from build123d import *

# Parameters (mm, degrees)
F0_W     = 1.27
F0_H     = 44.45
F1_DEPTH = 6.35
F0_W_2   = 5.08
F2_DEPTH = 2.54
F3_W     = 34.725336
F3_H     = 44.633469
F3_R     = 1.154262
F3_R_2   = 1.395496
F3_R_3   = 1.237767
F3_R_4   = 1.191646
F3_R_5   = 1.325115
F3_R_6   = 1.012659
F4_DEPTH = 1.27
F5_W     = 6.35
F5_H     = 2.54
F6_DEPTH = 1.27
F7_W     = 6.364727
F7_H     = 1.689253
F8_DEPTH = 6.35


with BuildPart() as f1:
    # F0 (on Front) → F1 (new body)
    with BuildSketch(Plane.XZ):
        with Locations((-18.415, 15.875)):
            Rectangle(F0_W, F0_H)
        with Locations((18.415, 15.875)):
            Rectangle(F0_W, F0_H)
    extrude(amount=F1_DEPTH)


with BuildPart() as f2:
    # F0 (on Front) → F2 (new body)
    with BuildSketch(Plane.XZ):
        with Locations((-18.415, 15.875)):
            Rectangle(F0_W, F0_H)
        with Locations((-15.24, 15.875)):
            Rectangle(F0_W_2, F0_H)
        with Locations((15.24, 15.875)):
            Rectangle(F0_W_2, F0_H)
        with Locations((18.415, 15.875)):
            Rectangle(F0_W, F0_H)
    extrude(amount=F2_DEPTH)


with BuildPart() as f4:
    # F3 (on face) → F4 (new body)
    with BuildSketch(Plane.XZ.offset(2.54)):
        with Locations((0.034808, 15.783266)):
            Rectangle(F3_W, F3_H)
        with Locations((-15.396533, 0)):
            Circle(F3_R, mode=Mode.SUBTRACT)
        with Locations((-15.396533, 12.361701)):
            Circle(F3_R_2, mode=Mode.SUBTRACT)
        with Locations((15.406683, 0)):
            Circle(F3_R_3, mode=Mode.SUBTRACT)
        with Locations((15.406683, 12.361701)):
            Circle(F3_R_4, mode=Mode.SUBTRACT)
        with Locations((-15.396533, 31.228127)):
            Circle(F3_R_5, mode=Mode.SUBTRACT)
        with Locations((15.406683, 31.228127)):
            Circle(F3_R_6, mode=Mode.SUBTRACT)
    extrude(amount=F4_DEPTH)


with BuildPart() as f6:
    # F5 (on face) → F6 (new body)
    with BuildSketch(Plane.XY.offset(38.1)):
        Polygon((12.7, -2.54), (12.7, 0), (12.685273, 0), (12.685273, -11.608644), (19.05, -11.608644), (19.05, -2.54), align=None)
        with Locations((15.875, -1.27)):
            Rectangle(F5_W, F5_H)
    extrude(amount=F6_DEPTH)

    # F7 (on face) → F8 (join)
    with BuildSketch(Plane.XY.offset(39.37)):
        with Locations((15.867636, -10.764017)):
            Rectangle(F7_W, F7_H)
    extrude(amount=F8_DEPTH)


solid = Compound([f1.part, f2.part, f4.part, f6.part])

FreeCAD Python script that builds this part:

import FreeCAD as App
import Part
import Sketcher
from FreeCAD import Vector
Q = App.Units.Quantity


def add_polygon(sketch, points):
    """Adds a closed chain of lines whose ends are joined by coincident constraints."""
    first, n = sketch.GeometryCount, len(points)
    for a, b in zip(points, points[1:] + points[:1]):
        sketch.addGeometry(Part.LineSegment(App.Vector(*a, 0), App.Vector(*b, 0)), False)
    for i in range(n):
        sketch.addConstraint(Sketcher.Constraint("Coincident", first + i, 2, first + (i + 1) % n, 1))

doc = App.newDocument("Part")
params = doc.addObject("Spreadsheet::Sheet", "Params")
for row, (alias, value) in enumerate([
    ("sketch1_width", "0.05 in"),
    ("sketch1_height", "1.75 in"),
    ("pad1_length", "0.25 in"),
    ("sketch2_width", "0.25 in"),
    ("sketch2_height", "1.75 in"),
    ("pad2_length", "0.1 in"),
    ("pad3_length", "0.05 in"),
    ("pad4_length", "0.05 in"),
    ("pad5_length", "0.25 in"),
], start=1):
    params.set(f"A{row}", alias)
    params.set(f"B{row}", "=" + value)
    params.setAlias(f"B{row}", alias)

body = doc.addObject("PartDesign::Body", "Body")
body.AllowCompound = True

sketch1 = body.newObject("Sketcher::SketchObject", "Sketch")
sketch1.AttachmentSupport = (doc.getObject("XZ_Plane"), [""])
sketch1.MapMode = "FlatFace"
add_polygon(sketch1, [(-19.1, 38.1), (-19.1, -6.3), (-17.8, -6.3), (-17.8, 38.1)])
add_polygon(sketch1, [(17.8, 38.1), (17.8, -6.3), (19.1, -6.3), (19.1, 38.1)])
sketch1.addConstraint([
    Sketcher.Constraint("Vertical", 0),
    Sketcher.Constraint("Horizontal", 1),
    Sketcher.Constraint("Vertical", 2),
    Sketcher.Constraint("Horizontal", 3),
    Sketcher.Constraint("Vertical", 4),
    Sketcher.Constraint("Horizontal", 5),
    Sketcher.Constraint("Vertical", 6),
    Sketcher.Constraint("Horizontal", 7),
    Sketcher.Constraint("Symmetric", 1, 2, 4, 2, -2),
    Sketcher.Constraint("Symmetric", 3, 2, 6, 2, -2),
    Sketcher.Constraint("DistanceX", 1, 1, 1, 2, Q("0.05 in")),
    Sketcher.Constraint("DistanceY", 0, 2, 0, 1, Q("1.75 in")),
    Sketcher.Constraint("DistanceX", 1, 2, -1, 1, Q("0.7 in")),
    Sketcher.Constraint("DistanceY", -1, 1, 2, 2, Q("1.5 in")),
])
sketch1.setExpression("Constraints[18]", "Params.sketch1_width")
sketch1.setExpression("Constraints[19]", "Params.sketch1_height")
pad1 = body.newObject("PartDesign::Pad", "Pad")
pad1.Profile = sketch1
pad1.setExpression("Length", "Params.pad1_length")
body2 = doc.addObject("PartDesign::Body", "Body001")
body2.AllowCompound = True

sketch2 = body2.newObject("Sketcher::SketchObject", "Sketch001")
sketch2.AttachmentSupport = (doc.getObject("XZ_Plane001"), [""])
sketch2.MapMode = "FlatFace"
add_polygon(sketch2, [(-19, 38), (-19, -6), (-13, -6), (-13, 38)])
add_polygon(sketch2, [(13, 38), (13, -6), (19, -6), (19, 38)])
sketch2.addConstraint([
    Sketcher.Constraint("Vertical", 0),
    Sketcher.Constraint("Horizontal", 1),
    Sketcher.Constraint("Vertical", 2),
    Sketcher.Constraint("Horizontal", 3),
    Sketcher.Constraint("Vertical", 4),
    Sketcher.Constraint("Horizontal", 5),
    Sketcher.Constraint("Vertical", 6),
    Sketcher.Constraint("Horizontal", 7),
    Sketcher.Constraint("Symmetric", 1, 2, 4, 2, -2),
    Sketcher.Constraint("Symmetric", 3, 2, 6, 2, -2),
    Sketcher.Constraint("DistanceX", 1, 2, 4, 2, Q("1 in")),
    Sketcher.Constraint("DistanceX", 1, 1, 1, 2, Q("0.25 in")),
    Sketcher.Constraint("DistanceY", 0, 2, 0, 1, Q("1.75 in")),
    Sketcher.Constraint("DistanceY", -1, 1, 2, 2, Q("1.5 in")),
])
sketch2.setExpression("Constraints[19]", "Params.sketch2_width")
sketch2.setExpression("Constraints[20]", "Params.sketch2_height")
pad2 = body2.newObject("PartDesign::Pad", "Pad001")
pad2.Profile = sketch2
pad2.setExpression("Length", "Params.pad2_length")
body3 = doc.addObject("PartDesign::Body", "Body002")

sketch3 = body3.newObject("Sketcher::SketchObject", "Sketch002")
sketch3.AttachmentSupport = (doc.getObject("XZ_Plane002"), [""])
sketch3.MapMode = "FlatFace"
sketch3.AttachmentOffset = App.Placement(Vector(0, 0, 0.1 * 25.4), App.Rotation())
add_polygon(sketch3, [(-17.3, 38.1), (-17.3, -6.5), (17.4, -6.5), (17.4, 38.1)])
sketch3.addGeometry(Part.Circle(Vector(-15.4, 0, 0), Vector(0, 0, 1), 1.2), False)
sketch3.addGeometry(Part.Circle(Vector(-15.4, 12.4, 0), Vector(0, 0, 1), 1.4), False)
sketch3.addGeometry(Part.Circle(Vector(15.4, 0, 0), Vector(0, 0, 1), 1.2), False)
sketch3.addGeometry(Part.Circle(Vector(15.4, 12.4, 0), Vector(0, 0, 1), 1.2), False)
sketch3.addGeometry(Part.Circle(Vector(-15.4, 31.2, 0), Vector(0, 0, 1), 1.3), False)
sketch3.addGeometry(Part.Circle(Vector(15.4, 31.2, 0), Vector(0, 0, 1), 1), False)
sketch3.addConstraint([
    Sketcher.Constraint("Vertical", 0),
    Sketcher.Constraint("Horizontal", 1),
    Sketcher.Constraint("Vertical", 2),
    Sketcher.Constraint("Horizontal", 3),
    Sketcher.Constraint("PointOnObject", 4, 3, -1),
    Sketcher.Constraint("PointOnObject", 6, 3, -1),
    Sketcher.Constraint("Horizontal", 5, 3, 7, 3),
    Sketcher.Constraint("Horizontal", 8, 3, 9, 3),
    Sketcher.Constraint("Vertical", 4, 3, 5, 3),
    Sketcher.Constraint("Vertical", 6, 3, 7, 3),
    Sketcher.Constraint("Vertical", 5, 3, 8, 3),
    Sketcher.Constraint("Vertical", 7, 3, 9, 3),
    Sketcher.Constraint("DistanceY", -1, 1, 2, 2, Q("1.5 in")),
    Sketcher.Constraint("Diameter", 7, 2.383292),
    Sketcher.Constraint("Diameter", 8, 2.65023),
    Sketcher.Constraint("Diameter", 9, 2.025318),
    Sketcher.Constraint("Diameter", 4, 2.308524),
    Sketcher.Constraint("Diameter", 5, 2.790992),
    Sketcher.Constraint("Diameter", 6, 2.475534),
    Sketcher.Constraint("DistanceY", 0, 2, 0, 1, 44.633469),
    Sketcher.Constraint("DistanceY", -1, 1, 5, 3, 12.361701),
    Sketcher.Constraint("DistanceX", 1, 1, 1, 2, 34.725336),
    Sketcher.Constraint("DistanceX", 0, 2, -1, 1, 17.32786),
    Sketcher.Constraint("DistanceX", 4, 3, 1, 2, 32.794009),
    Sketcher.Constraint("DistanceX", -1, 1, 6, 3, 15.406683),
    Sketcher.Constraint("DistanceY", -1, 1, 8, 3, 31.228127),
])
pad3 = body3.newObject("PartDesign::Pad", "Pad002")
pad3.Profile = sketch3
pad3.setExpression("Length", "Params.pad3_length")
body4 = doc.addObject("PartDesign::Body", "Body003")

sketch4 = body4.newObject("Sketcher::SketchObject", "Sketch003")
sketch4.AttachmentSupport = (doc.getObject("XY_Plane003"), [""])
sketch4.MapMode = "FlatFace"
sketch4.AttachmentOffset = App.Placement(Vector(0, 0, 1.5 * 25.4), App.Rotation())
add_polygon(sketch4, [(13, 0), (13, -12), (19, -12), (19, 0)])
sketch4.addConstraint([
    Sketcher.Constraint("Vertical", 0),
    Sketcher.Constraint("Horizontal", 1),
    Sketcher.Constraint("Vertical", 2),
    Sketcher.Constraint("Horizontal", 3),
    Sketcher.Constraint("PointOnObject", 2, 2, -1),
    Sketcher.Constraint("DistanceX", -1, 1, 1, 2, Q("0.75 in")),
    Sketcher.Constraint("DistanceX", 1, 1, 1, 2, 6.364727),
    Sketcher.Constraint("DistanceY", 0, 2, 0, 1, 11.608644),
])
pad4 = body4.newObject("PartDesign::Pad", "Pad003")
pad4.Profile = sketch4
pad4.setExpression("Length", "Params.pad4_length")

sketch5 = body4.newObject("Sketcher::SketchObject", "Sketch004")
sketch5.AttachmentSupport = (doc.getObject("XY_Plane003"), [""])
sketch5.MapMode = "FlatFace"
sketch5.AttachmentOffset = App.Placement(Vector(0, 0, 1.55 * 25.4), App.Rotation())
add_polygon(sketch5, [(12.7, -9.9), (12.7, -11.6), (19, -11.6), (19, -9.9)])
sketch5.addConstraint([
    Sketcher.Constraint("Vertical", 0),
    Sketcher.Constraint("Horizontal", 1),
    Sketcher.Constraint("Vertical", 2),
    Sketcher.Constraint("Horizontal", 3),
    Sketcher.Constraint("DistanceX", -1, 1, 1, 2, Q("0.75 in")),
    Sketcher.Constraint("DistanceX", 1, 1, 1, 2, 6.364727),
    Sketcher.Constraint("DistanceY", 0, 2, 0, 1, 1.689253),
    Sketcher.Constraint("DistanceY", 2, 2, -1, 1, 9.919391),
])
pad5 = body4.newObject("PartDesign::Pad", "Pad004")
pad5.Profile = sketch5
pad5.setExpression("Length", "Params.pad5_length")

doc.recompute()
